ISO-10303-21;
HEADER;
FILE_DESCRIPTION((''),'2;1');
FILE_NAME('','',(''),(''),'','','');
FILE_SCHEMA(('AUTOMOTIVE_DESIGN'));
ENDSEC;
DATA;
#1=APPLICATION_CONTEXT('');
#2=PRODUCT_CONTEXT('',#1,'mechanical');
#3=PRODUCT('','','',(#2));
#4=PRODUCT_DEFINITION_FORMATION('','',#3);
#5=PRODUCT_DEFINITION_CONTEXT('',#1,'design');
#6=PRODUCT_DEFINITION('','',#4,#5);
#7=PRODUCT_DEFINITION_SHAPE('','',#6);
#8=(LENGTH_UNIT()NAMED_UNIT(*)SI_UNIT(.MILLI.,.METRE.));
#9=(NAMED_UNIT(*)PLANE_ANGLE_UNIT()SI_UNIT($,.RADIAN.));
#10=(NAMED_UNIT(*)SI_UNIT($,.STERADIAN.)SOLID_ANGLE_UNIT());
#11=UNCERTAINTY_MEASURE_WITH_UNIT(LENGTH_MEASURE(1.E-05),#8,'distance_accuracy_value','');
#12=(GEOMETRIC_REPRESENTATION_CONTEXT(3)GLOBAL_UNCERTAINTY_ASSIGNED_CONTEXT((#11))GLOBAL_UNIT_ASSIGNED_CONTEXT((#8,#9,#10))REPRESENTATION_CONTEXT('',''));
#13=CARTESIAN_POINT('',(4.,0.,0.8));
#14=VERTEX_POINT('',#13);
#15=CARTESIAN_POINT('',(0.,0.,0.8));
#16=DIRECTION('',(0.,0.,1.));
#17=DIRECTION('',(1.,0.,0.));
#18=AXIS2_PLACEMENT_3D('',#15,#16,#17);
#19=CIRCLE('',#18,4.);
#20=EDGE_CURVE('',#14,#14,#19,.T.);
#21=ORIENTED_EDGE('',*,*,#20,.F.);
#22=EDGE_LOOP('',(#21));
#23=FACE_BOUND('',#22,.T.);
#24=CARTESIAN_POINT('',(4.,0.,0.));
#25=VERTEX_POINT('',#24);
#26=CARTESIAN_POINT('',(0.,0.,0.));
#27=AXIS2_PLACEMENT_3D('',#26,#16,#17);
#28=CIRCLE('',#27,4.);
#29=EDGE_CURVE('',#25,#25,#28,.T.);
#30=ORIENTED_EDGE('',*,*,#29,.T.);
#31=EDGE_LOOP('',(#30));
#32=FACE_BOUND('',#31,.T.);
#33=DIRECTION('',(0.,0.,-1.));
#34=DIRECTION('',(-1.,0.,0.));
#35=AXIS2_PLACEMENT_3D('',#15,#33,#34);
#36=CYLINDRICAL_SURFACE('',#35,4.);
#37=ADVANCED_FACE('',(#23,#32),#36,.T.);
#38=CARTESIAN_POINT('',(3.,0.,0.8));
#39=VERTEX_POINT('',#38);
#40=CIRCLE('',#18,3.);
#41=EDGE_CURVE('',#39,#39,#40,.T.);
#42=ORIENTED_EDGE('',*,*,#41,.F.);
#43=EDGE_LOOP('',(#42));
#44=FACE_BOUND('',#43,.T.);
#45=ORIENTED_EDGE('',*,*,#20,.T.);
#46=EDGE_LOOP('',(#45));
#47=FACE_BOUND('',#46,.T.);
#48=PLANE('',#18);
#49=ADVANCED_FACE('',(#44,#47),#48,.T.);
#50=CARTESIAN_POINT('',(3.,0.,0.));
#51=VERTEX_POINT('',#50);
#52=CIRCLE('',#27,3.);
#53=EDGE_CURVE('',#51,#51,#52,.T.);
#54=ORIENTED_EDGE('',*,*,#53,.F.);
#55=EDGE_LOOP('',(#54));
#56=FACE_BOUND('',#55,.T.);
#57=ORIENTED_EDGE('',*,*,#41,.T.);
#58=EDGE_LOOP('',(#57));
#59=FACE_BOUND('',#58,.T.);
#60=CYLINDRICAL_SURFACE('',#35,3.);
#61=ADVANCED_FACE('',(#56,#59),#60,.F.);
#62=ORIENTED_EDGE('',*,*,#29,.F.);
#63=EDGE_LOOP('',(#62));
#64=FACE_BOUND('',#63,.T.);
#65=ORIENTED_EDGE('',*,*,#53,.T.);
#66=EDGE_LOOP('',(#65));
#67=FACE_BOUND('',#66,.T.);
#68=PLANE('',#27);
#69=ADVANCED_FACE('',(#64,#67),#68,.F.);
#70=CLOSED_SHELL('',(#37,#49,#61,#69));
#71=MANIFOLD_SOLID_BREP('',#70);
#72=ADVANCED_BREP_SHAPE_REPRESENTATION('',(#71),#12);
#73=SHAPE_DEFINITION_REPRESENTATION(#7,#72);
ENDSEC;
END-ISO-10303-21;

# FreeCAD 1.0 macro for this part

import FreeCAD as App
import Part
import Sketcher

V = App.Vector

doc = App.newDocument("Part")
params = doc.addObject("Spreadsheet::Sheet", "Params")
for row, (alias, value) in enumerate([
    ("sketch1_diameter", "8 mm"),
    ("sketch1_diameter2", "6 mm"),
    ("pad1_length", "0.8 mm"),
], start=1):
    params.set(f"A{row}", alias)
    params.set(f"B{row}", "=" + value)
    params.setAlias(f"B{row}", alias)

body = doc.addObject("PartDesign::Body", "Body")

sketch1 = body.newObject("Sketcher::SketchObject", "Sketch")
sketch1.AttachmentSupport = (doc.getObject("XY_Plane"), [""])
sketch1.MapMode = "FlatFace"
sketch1.addGeometry(Part.Circle(V(0, 0, 0), V(0, 0, 1), 4), False)
sketch1.addGeometry(Part.Circle(V(0, 0, 0), V(0, 0, 1), 3), False)
sketch1.addConstraint(Sketcher.Constraint("Coincident", 0, 3, -1, 1))
sketch1.addConstraint(Sketcher.Constraint("Coincident", 1, 3, -1, 1))
sketch1.addConstraint(Sketcher.Constraint("Diameter", 0, 8.0))
sketch1.addConstraint(Sketcher.Constraint("Diameter", 1, 6.0))
sketch1.setExpression("Constraints[2]", "Params.sketch1_diameter")
sketch1.setExpression("Constraints[3]", "Params.sketch1_diameter2")
pad1 = body.newObject("PartDesign::Pad", "Pad")
pad1.Profile = sketch1
pad1.setExpression("Length", "Params.pad1_length")

doc.recompute()
